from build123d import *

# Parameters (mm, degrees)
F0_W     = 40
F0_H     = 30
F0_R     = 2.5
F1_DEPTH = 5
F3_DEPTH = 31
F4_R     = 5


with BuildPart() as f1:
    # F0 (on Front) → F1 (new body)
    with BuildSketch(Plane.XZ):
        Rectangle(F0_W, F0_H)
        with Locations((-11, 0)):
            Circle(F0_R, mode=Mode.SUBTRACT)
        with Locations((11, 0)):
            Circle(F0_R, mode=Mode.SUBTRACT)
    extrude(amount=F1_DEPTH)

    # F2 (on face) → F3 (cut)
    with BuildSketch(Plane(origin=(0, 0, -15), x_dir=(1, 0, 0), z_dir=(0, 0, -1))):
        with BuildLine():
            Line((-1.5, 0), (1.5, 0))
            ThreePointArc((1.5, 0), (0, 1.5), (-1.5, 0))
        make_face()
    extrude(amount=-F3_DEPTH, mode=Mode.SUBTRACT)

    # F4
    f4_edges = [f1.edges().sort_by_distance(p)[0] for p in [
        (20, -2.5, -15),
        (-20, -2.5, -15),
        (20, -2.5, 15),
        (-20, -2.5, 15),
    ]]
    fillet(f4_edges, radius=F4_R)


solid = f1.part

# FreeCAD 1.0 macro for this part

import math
import FreeCAD as App
import Part
import Sketcher
Q = App.Units.Quantity


def edges_at(feature, points):
    """Names of the edges that pass closest to the given points."""
    edges = feature.Shape.Edges
    near = lambda p: min(range(len(edges)), key=lambda i: edges[i].distToShape(Part.Vertex(*p))[0])
    return sorted({f"Edge{near(p) + 1}" for p in points})


def add_polygon(sketch, points):
    """Adds a closed chain of lines whose ends are joined by coincident constraints."""
    first, n = sketch.GeometryCount, len(points)
    for a, b in zip(points, points[1:] + points[:1]):
        sketch.addGeometry(Part.LineSegment(App.Vector(*a, 0), App.Vector(*b, 0)), False)
    for i in range(n):
        sketch.addConstraint(Sketcher.Constraint("Coincident", first + i, 2, first + (i + 1) % n, 1))

doc = App.newDocument("Part")
params = doc.addObject("Spreadsheet::Sheet", "Params")
for row, (alias, value) in enumerate([
    ("sketch1_diameter", "5 mm"),
    ("sketch1_width", "40 mm"),
    ("sketch1_height", "30 mm"),
    ("pad1_length", "5 mm"),
    ("sketch2_radius", "1.5 mm"),
    ("pocket1_length", "31 mm"),
    ("fillet_radius", "5 mm"),
], start=1):
    params.set(f"A{row}", alias)
    params.set(f"B{row}", "=" + value)
    params.setAlias(f"B{row}", alias)

body = doc.addObject("PartDesign::Body", "Body")

# Sketch on XZ plane
sketch1 = doc.addObject("Sketcher::SketchObject", "Sketch")
body.addObject(sketch1)
sketch1.AttachmentSupport = (doc.XZ_Plane, [""])
sketch1.MapMode = "FlatFace"
add_polygon(sketch1, [(-20, 15), (-20, -15), (20, -15), (20, 15)])  # lines 0-3
sketch1.addGeometry(Part.Circle(App.Vector(-11, 0, 0), App.Vector(0, 0, 1), 2.5), False)  # 4
sketch1.addGeometry(Part.Circle(App.Vector(11, 0, 0), App.Vector(0, 0, 1), 2.5), False)  # 5
sketch1.addConstraint(Sketcher.Constraint("Vertical", 0))
sketch1.addConstraint(Sketcher.Constraint("Horizontal", 1))
sketch1.addConstraint(Sketcher.Constraint("Vertical", 2))
sketch1.addConstraint(Sketcher.Constraint("Horizontal", 3))
sketch1.addConstraint(Sketcher.Constraint("Equal", 4, 5))
sketch1.addConstraint(Sketcher.Constraint("Symmetric", 4, 3, 5, 3, -1, 1))
sketch1.addConstraint(Sketcher.Constraint("Symmetric", 0, 2, 2, 2, -1, 1))
sketch1.addConstraint(Sketcher.Constraint("PointOnObject", 4, 3, -1))
sketch1.addConstraint(Sketcher.Constraint("Diameter", 4, Q("5 mm")))
sketch1.addConstraint(Sketcher.Constraint("DistanceX", 1, 1, 1, 2, Q("40 mm")))
sketch1.addConstraint(Sketcher.Constraint("DistanceY", 0, 2, 0, 1, Q("30 mm")))
sketch1.addConstraint(Sketcher.Constraint("DistanceX", 4, 3, -1, 1, Q("11 mm")))
sketch1.setExpression("Constraints[12]", "Params.sketch1_diameter")
sketch1.setExpression("Constraints[13]", "Params.sketch1_width")
sketch1.setExpression("Constraints[14]", "Params.sketch1_height")
pad1 = doc.addObject("PartDesign::Pad", "Pad")
body.addObject(pad1)
pad1.Profile = sketch1
pad1.setExpression("Length", "Params.pad1_length")

# Sketch on XY plane
sketch2 = doc.addObject("Sketcher::SketchObject", "Sketch001")
body.addObject(sketch2)
sketch2.AttachmentSupport = (doc.XY_Plane, [""])
sketch2.MapMode = "FlatFace"
sketch2.AttachmentOffset = App.Placement(App.Vector(0, 0, -15), App.Rotation())
sketch2.addGeometry(Part.LineSegment(App.Vector(-1.5, 0, 0), App.Vector(1.5, 0, 0)), False)
sketch2.addGeometry(Part.ArcOfCircle(Part.Circle(App.Vector(0, 0, 0), App.Vector(0, 0, 1), 1.5), math.radians(180), math.radians(360)), False)
sketch2.addConstraint(Sketcher.Constraint("Coincident", 0, 1, 1, 1))
sketch2.addConstraint(Sketcher.Constraint("Coincident", 1, 2, 0, 2))
sketch2.addConstraint(Sketcher.Constraint("Horizontal", 0))
sketch2.addConstraint(Sketcher.Constraint("Coincident", 1, 3, -1, 1))
sketch2.addConstraint(Sketcher.Constraint("PointOnObject", 0, 1, -1))
sketch2.addConstraint(Sketcher.Constraint("Radius", 1, Q("1.5 mm")))
sketch2.setExpression("Constraints[5]", "Params.sketch2_radius")
pocket1 = doc.addObject("PartDesign::Pocket", "Pocket")
body.addObject(pocket1)
pocket1.Profile = sketch2
pocket1.setExpression("Length", "Params.pocket1_length")
pocket1.Reversed = True
doc.recompute()

fillet = doc.addObject("PartDesign::Fillet", "Fillet")
body.addObject(fillet)
fillet.Base = (pocket1, edges_at(pocket1, [
    (20, -2.5, -15),
    (-20, -2.5, -15),
    (20, -2.5, 15),
    (-20, -2.5, 15),
]))
fillet.setExpression("Radius", "Params.fillet_radius")

doc.recompute()
